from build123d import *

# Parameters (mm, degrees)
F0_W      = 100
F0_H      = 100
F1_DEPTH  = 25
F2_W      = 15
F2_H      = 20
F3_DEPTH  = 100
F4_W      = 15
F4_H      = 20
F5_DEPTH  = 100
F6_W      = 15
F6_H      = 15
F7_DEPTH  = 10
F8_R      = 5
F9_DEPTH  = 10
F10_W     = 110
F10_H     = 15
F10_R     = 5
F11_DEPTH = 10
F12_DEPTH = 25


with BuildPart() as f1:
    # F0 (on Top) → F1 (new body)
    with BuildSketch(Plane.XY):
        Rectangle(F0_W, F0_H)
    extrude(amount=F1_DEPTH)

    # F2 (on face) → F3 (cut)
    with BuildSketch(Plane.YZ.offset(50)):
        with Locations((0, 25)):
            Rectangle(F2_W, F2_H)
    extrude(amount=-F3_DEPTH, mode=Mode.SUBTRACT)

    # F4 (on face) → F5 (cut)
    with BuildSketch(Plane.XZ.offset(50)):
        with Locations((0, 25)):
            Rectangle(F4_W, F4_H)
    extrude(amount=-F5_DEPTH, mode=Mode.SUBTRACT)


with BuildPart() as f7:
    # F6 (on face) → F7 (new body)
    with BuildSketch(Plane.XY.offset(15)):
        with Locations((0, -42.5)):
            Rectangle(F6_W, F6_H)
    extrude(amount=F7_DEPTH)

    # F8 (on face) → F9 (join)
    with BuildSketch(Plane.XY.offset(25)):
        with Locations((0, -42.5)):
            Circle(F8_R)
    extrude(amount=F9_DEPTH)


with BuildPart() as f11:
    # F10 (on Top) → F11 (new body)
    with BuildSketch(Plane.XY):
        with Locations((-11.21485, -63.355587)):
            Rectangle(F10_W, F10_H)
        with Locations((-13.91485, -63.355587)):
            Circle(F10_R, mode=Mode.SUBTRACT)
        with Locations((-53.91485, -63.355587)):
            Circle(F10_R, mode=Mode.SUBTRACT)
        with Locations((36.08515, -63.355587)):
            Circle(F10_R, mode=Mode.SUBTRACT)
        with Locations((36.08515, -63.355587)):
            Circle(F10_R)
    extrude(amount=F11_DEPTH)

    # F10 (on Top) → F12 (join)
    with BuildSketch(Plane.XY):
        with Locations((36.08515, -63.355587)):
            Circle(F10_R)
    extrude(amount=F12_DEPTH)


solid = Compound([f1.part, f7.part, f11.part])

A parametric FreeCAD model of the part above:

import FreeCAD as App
import Part
import Sketcher


def add_polygon(sketch, points):
    """Adds a closed chain of lines whose ends are joined by coincident constraints."""
    first, n = sketch.GeometryCount, len(points)
    for a, b in zip(points, points[1:] + points[:1]):
        sketch.addGeometry(Part.LineSegment(App.Vector(*a, 0), App.Vector(*b, 0)), False)
    for i in range(n):
        sketch.addConstraint(Sketcher.Constraint("Coincident", first + i, 2, first + (i + 1) % n, 1))

doc = App.newDocument("Part")
body = doc.addObject("PartDesign::Body", "Body")

# Sketch on XY plane
sketch1 = body.newObject("Sketcher::SketchObject", "Sketch")
sketch1.AttachmentSupport = (doc.getObject("XY_Plane"), [""])
sketch1.MapMode = "FlatFace"
add_polygon(sketch1, [(-50, 50), (-50, -50), (50, -50), (50, 50)])  # lines 0-3
sketch1.addConstraint([
    Sketcher.Constraint("Vertical", 0),
    Sketcher.Constraint("Horizontal", 1),
    Sketcher.Constraint("Vertical", 2),
    Sketcher.Constraint("Horizontal", 3),
    Sketcher.Constraint("Symmetric", 0, 2, 2, 2, -1, 1),
    Sketcher.Constraint("Equal", 3, 0),
    Sketcher.Constraint("DistanceX", 1, 1, 1, 2, 100.0),
])
pad1 = body.newObject("PartDesign::Pad", "Pad")
pad1.Profile = sketch1
pad1.Length = 25

# Sketch on YZ plane
sketch2 = body.newObject("Sketcher::SketchObject", "Sketch001")
sketch2.AttachmentSupport = (doc.getObject("YZ_Plane"), [""])
sketch2.MapMode = "FlatFace"
sketch2.AttachmentOffset = App.Placement(App.Vector(0, 0, 50), App.Rotation())
add_polygon(sketch2, [(-8, 35), (-8, 15), (8, 15), (8, 35)])  # lines 0-3
sketch2.addConstraint([
    Sketcher.Constraint("Vertical", 0),
    Sketcher.Constraint("Horizontal", 1),
    Sketcher.Constraint("Vertical", 2),
    Sketcher.Constraint("Horizontal", 3),
    Sketcher.Constraint("DistanceX", 1, 1, 1, 2, 15.0),
    Sketcher.Constraint("DistanceY", 0, 2, 0, 1, 20.0),
    Sketcher.Constraint("DistanceY", -1, 1, 0, 2, 15.0),
    Sketcher.Constraint("DistanceX", 0, 2, -1, 1, 7.5),
])
pocket1 = body.newObject("PartDesign::Pocket", "Pocket")
pocket1.Profile = sketch2
pocket1.Length = 100

# Sketch on XZ plane
sketch3 = body.newObject("Sketcher::SketchObject", "Sketch002")
sketch3.AttachmentSupport = (doc.getObject("XZ_Plane"), [""])
sketch3.MapMode = "FlatFace"
sketch3.AttachmentOffset = App.Placement(App.Vector(0, 0, 50), App.Rotation())
add_polygon(sketch3, [(-8, 35), (-8, 15), (8, 15), (8, 35)])  # lines 0-3
sketch3.addConstraint([
    Sketcher.Constraint("Vertical", 0),
    Sketcher.Constraint("Horizontal", 1),
    Sketcher.Constraint("Vertical", 2),
    Sketcher.Constraint("Horizontal", 3),
    Sketcher.Constraint("DistanceX", 1, 1, 1, 2, 15.0),
    Sketcher.Constraint("DistanceY", 0, 2, 0, 1, 20.0),
    Sketcher.Constraint("DistanceY", -1, 1, 0, 2, 15.0),
    Sketcher.Constraint("DistanceX", 0, 2, -1, 1, 7.5),
])
pocket2 = body.newObject("PartDesign::Pocket", "Pocket001")
pocket2.Profile = sketch3
pocket2.Length = 100
body2 = doc.addObject("PartDesign::Body", "Body001")

# Sketch on XY plane
sketch4 = body2.newObject("Sketcher::SketchObject", "Sketch003")
sketch4.AttachmentSupport = (doc.getObject("XY_Plane001"), [""])
sketch4.MapMode = "FlatFace"
sketch4.AttachmentOffset = App.Placement(App.Vector(0, 0, 15), App.Rotation())
add_polygon(sketch4, [(-8, -35), (-8, -50), (8, -50), (8, -35)])  # lines 0-3
sketch4.addConstraint([
    Sketcher.Constraint("Vertical", 0),
    Sketcher.Constraint("Horizontal", 1),
    Sketcher.Constraint("Vertical", 2),
    Sketcher.Constraint("Horizontal", 3),
    Sketcher.Constraint("Equal", 3, 0),
    Sketcher.Constraint("DistanceX", 1, 1, 1, 2, 15.0),
    Sketcher.Constraint("DistanceY", 0, 2, -1, 1, 50.0),
    Sketcher.Constraint("DistanceX", 0, 2, -1, 1, 7.5),
])
pad2 = body2.newObject("PartDesign::Pad", "Pad001")
pad2.Profile = sketch4
pad2.Length = 10

# Sketch on XY plane
sketch5 = body2.newObject("Sketcher::SketchObject", "Sketch004")
sketch5.AttachmentSupport = (doc.getObject("XY_Plane001"), [""])
sketch5.MapMode = "FlatFace"
sketch5.AttachmentOffset = App.Placement(App.Vector(0, 0, 25), App.Rotation())
sketch5.addGeometry(Part.Circle(App.Vector(0, -42, 0), App.Vector(0, 0, 1), 5), False)
sketch5.addConstraint([
    Sketcher.Constraint("PointOnObject", 0, 3, -2),
    Sketcher.Constraint("Diameter", 0, 10.0),
    Sketcher.Constraint("DistanceY", 0, 3, -1, 1, 42.5),
])
pad3 = body2.newObject("PartDesign::Pad", "Pad002")
pad3.Profile = sketch5
pad3.Length = 10
body3 = doc.addObject("PartDesign::Body", "Body002")

# Sketch on XY plane
sketch6 = body3.newObject("Sketcher::SketchObject", "Sketch005")
sketch6.AttachmentSupport = (doc.getObject("XY_Plane002"), [""])
sketch6.MapMode = "FlatFace"
add_polygon(sketch6, [(-66, -56), (-66, -71), (44, -71), (44, -56)])  # lines 0-3
sketch6.addGeometry(Part.Circle(App.Vector(-54, -63, 0), App.Vector(0, 0, 1), 5), False)  # 4
sketch6.addGeometry(Part.Circle(App.Vector(-14, -63, 0), App.Vector(0, 0, 1), 5), False)  # 5
sketch6.addConstraint([
    Sketcher.Constraint("Vertical", 0),
    Sketcher.Constraint("Horizontal", 1),
    Sketcher.Constraint("Vertical", 2),
    Sketcher.Constraint("Horizontal", 3),
    Sketcher.Constraint("Equal", 4, 5),
    Sketcher.Constraint("Horizontal", 4, 3, 5, 3),
    Sketcher.Constraint("Diameter", 4, 10.0),
    Sketcher.Constraint("DistanceX", 1, 1, 1, 2, 110.0),
    Sketcher.Constraint("DistanceY", 0, 2, 0, 1, 15.0),
    Sketcher.Constraint("DistanceX", 4, 3, 5, 3, 40.0),
    Sketcher.Constraint("DistanceX", 0, 2, 4, 3, 12.3),
    Sketcher.Constraint("DistanceY", 0, 2, 4, 3, 7.5),
    Sketcher.Constraint("DistanceX", 4, 3, -1, 1, 53.91485),
    Sketcher.Constraint("DistanceY", 4, 3, -1, 1, 63.355587),
])
pad4 = body3.newObject("PartDesign::Pad", "Pad003")
pad4.Profile = sketch6
pad4.Length = 10

# Sketch on XY plane
sketch7 = body3.newObject("Sketcher::SketchObject", "Sketch006")
sketch7.AttachmentSupport = (doc.getObject("XY_Plane002"), [""])
sketch7.MapMode = "FlatFace"
sketch7.addGeometry(Part.Circle(App.Vector(36, -63, 0), App.Vector(0, 0, 1), 5), False)
sketch7.addConstraint([
    Sketcher.Constraint("Diameter", 0, 10.0),
    Sketcher.Constraint("DistanceX", -1, 1, 0, 3, 36.08515),
    Sketcher.Constraint("DistanceY", 0, 3, -1, 1, 63.355587),
])
pad5 = body3.newObject("PartDesign::Pad", "Pad004")
pad5.Profile = sketch7
pad5.Length = 25

doc.recompute()
